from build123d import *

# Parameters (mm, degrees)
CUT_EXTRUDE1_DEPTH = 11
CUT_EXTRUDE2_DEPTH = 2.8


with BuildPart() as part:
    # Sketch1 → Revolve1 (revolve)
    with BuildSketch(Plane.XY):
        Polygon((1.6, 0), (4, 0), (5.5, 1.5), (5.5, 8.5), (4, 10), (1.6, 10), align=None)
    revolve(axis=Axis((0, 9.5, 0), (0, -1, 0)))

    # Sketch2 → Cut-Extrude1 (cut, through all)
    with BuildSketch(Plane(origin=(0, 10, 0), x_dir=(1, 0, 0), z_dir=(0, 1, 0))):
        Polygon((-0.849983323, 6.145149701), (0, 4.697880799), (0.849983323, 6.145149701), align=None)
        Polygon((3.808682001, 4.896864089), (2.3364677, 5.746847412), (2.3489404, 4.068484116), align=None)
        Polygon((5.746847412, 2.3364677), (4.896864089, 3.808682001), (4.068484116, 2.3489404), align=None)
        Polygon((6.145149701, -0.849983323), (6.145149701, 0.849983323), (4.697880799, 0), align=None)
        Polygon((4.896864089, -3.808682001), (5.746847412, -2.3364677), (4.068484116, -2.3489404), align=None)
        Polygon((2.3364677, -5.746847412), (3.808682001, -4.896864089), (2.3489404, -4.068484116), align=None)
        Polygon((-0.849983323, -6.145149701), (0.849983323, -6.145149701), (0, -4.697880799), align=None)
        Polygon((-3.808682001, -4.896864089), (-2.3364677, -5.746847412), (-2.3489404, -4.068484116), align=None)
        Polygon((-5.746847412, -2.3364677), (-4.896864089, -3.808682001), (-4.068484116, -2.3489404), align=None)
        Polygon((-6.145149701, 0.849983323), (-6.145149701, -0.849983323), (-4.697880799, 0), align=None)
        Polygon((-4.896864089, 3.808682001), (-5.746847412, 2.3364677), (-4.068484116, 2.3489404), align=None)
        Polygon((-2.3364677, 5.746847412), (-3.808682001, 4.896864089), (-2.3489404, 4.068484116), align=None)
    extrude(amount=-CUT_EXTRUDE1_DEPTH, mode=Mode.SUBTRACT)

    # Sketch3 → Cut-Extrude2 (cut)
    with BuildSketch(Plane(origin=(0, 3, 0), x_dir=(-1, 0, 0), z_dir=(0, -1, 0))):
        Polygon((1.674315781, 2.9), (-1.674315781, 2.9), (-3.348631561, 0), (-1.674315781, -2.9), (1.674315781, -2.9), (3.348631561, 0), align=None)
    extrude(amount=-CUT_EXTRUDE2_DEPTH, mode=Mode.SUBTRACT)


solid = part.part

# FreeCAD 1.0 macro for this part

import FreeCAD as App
import Part
import Sketcher
from FreeCAD import Vector
Q = App.Units.Quantity

doc = App.newDocument("Part")
body = doc.addObject("PartDesign::Body", "Body")

sketch1 = doc.addObject("Sketcher::SketchObject", "Sketch")
body.addObject(sketch1)
sketch1.AttachmentSupport = (doc.XY_Plane, [""])
sketch1.MapMode = "FlatFace"
sketch1.addGeometry(Part.LineSegment(Vector(1.6, 0, 0), Vector(4, 0, 0)), False)
sketch1.addGeometry(Part.LineSegment(Vector(4, 0, 0), Vector(5.5, 1.5, 0)), False)
sketch1.addGeometry(Part.LineSegment(Vector(5.5, 1.5, 0), Vector(5.5, 8.5, 0)), False)
sketch1.addGeometry(Part.LineSegment(Vector(5.5, 8.5, 0), Vector(4, 10, 0)), False)
sketch1.addGeometry(Part.LineSegment(Vector(4, 10, 0), Vector(1.6, 10, 0)), False)
sketch1.addGeometry(Part.LineSegment(Vector(1.6, 10, 0), Vector(1.6, 0, 0)), False)
sketch1.addConstraint(Sketcher.Constraint("Coincident", 0, 2, 1, 1))
sketch1.addConstraint(Sketcher.Constraint("Coincident", 1, 2, 2, 1))
sketch1.addConstraint(Sketcher.Constraint("Coincident", 2, 2, 3, 1))
sketch1.addConstraint(Sketcher.Constraint("Coincident", 3, 2, 4, 1))
sketch1.addConstraint(Sketcher.Constraint("Coincident", 4, 2, 5, 1))
sketch1.addConstraint(Sketcher.Constraint("Coincident", 5, 2, 0, 1))
sketch1.addConstraint(Sketcher.Constraint("Horizontal", 0))
sketch1.addConstraint(Sketcher.Constraint("Vertical", 2))
sketch1.addConstraint(Sketcher.Constraint("Horizontal", 4))
sketch1.addConstraint(Sketcher.Constraint("Vertical", 5))
sketch1.addConstraint(Sketcher.Constraint("PointOnObject", 0, 2, -1))
sketch1.addConstraint(Sketcher.Constraint("Perpendicular", 1, 3))
sketch1.addConstraint(Sketcher.Constraint("Vertical", 0, 2, 3, 2))
sketch1.addConstraint(Sketcher.Constraint("Equal", 1, 3))
sketch1.addConstraint(Sketcher.Constraint("DistanceY", 2, 1, 2, 2, 7.0))
sketch1.addConstraint(Sketcher.Constraint("DistanceY", 5, 2, 5, 1, 10.0))
sketch1.addConstraint(Sketcher.Constraint("DistanceX", 0, 1, 0, 2, 2.4))
sketch1.addConstraint(Sketcher.Constraint("DistanceX", -1, 1, 0, 2, 4.0))
revolution = doc.addObject("PartDesign::Revolution", "Revolution")
body.addObject(revolution)
revolution.Profile = sketch1
revolution.ReferenceAxis = (sketch1, ["V_Axis"])
revolution.Angle = 360

sketch2 = doc.addObject("Sketcher::SketchObject", "Sketch001")
body.addObject(sketch2)
sketch2.AttachmentSupport = (doc.XZ_Plane, [""])
sketch2.MapMode = "FlatFace"
sketch2.AttachmentOffset = App.Placement(Vector(0, 0, -10), App.Rotation())
sketch2.addGeometry(Part.LineSegment(Vector(-0.8, -6.1, 0), Vector(0, -4.7, 0)), False)
sketch2.addGeometry(Part.LineSegment(Vector(0, -4.7, 0), Vector(0.8, -6.1, 0)), False)
sketch2.addGeometry(Part.LineSegment(Vector(0.8, -6.1, 0), Vector(-0.8, -6.1, 0)), False)
sketch2.addGeometry(Part.LineSegment(Vector(3.8, -4.9, 0), Vector(2.3, -5.7, 0)), False)
sketch2.addGeometry(Part.LineSegment(Vector(2.3, -5.7, 0), Vector(2.3, -4.1, 0)), False)
sketch2.addGeometry(Part.LineSegment(Vector(2.3, -4.1, 0), Vector(3.8, -4.9, 0)), False)
sketch2.addGeometry(Part.LineSegment(Vector(5.7, -2.3, 0), Vector(4.9, -3.8, 0)), False)
sketch2.addGeometry(Part.LineSegment(Vector(4.9, -3.8, 0), Vector(4.1, -2.3, 0)), False)
sketch2.addGeometry(Part.LineSegment(Vector(4.1, -2.3, 0), Vector(5.7, -2.3, 0)), False)
sketch2.addGeometry(Part.LineSegment(Vector(6.1, 0.8, 0), Vector(6.1, -0.8, 0)), False)
sketch2.addGeometry(Part.LineSegment(Vector(6.1, -0.8, 0), Vector(4.7, 0, 0)), False)
sketch2.addGeometry(Part.LineSegment(Vector(4.7, 0, 0), Vector(6.1, 0.8, 0)), False)
sketch2.addGeometry(Part.LineSegment(Vector(4.9, 3.8, 0), Vector(5.7, 2.3, 0)), False)
sketch2.addGeometry(Part.LineSegment(Vector(5.7, 2.3, 0), Vector(4.1, 2.3, 0)), False)
sketch2.addGeometry(Part.LineSegment(Vector(4.1, 2.3, 0), Vector(4.9, 3.8, 0)), False)
sketch2.addGeometry(Part.LineSegment(Vector(2.3, 5.7, 0), Vector(3.8, 4.9, 0)), False)
sketch2.addGeometry(Part.LineSegment(Vector(3.8, 4.9, 0), Vector(2.3, 4.1, 0)), False)
sketch2.addGeometry(Part.LineSegment(Vector(2.3, 4.1, 0), Vector(2.3, 5.7, 0)), False)
sketch2.addGeometry(Part.LineSegment(Vector(-0.8, 6.1, 0), Vector(0.8, 6.1, 0)), False)
sketch2.addGeometry(Part.LineSegment(Vector(0.8, 6.1, 0), Vector(0, 4.7, 0)), False)
sketch2.addGeometry(Part.LineSegment(Vector(0, 4.7, 0), Vector(-0.8, 6.1, 0)), False)
sketch2.addGeometry(Part.LineSegment(Vector(-3.8, 4.9, 0), Vector(-2.3, 5.7, 0)), False)
sketch2.addGeometry(Part.LineSegment(Vector(-2.3, 5.7, 0), Vector(-2.3, 4.1, 0)), False)
sketch2.addGeometry(Part.LineSegment(Vector(-2.3, 4.1, 0), Vector(-3.8, 4.9, 0)), False)
sketch2.addGeometry(Part.LineSegment(Vector(-5.7, 2.3, 0), Vector(-4.9, 3.8, 0)), False)
sketch2.addGeometry(Part.LineSegment(Vector(-4.9, 3.8, 0), Vector(-4.1, 2.3, 0)), False)
sketch2.addGeometry(Part.LineSegment(Vector(-4.1, 2.3, 0), Vector(-5.7, 2.3, 0)), False)
sketch2.addGeometry(Part.LineSegment(Vector(-6.1, -0.8, 0), Vector(-6.1, 0.8, 0)), False)
sketch2.addGeometry(Part.LineSegment(Vector(-6.1, 0.8, 0), Vector(-4.7, 0, 0)), False)
sketch2.addGeometry(Part.LineSegment(Vector(-4.7, 0, 0), Vector(-6.1, -0.8, 0)), False)
sketch2.addGeometry(Part.LineSegment(Vector(-4.9, -3.8, 0), Vector(-5.7, -2.3, 0)), False)
sketch2.addGeometry(Part.LineSegment(Vector(-5.7, -2.3, 0), Vector(-4.1, -2.3, 0)), False)
sketch2.addGeometry(Part.LineSegment(Vector(-4.1, -2.3, 0), Vector(-4.9, -3.8, 0)), False)
sketch2.addGeometry(Part.LineSegment(Vector(-2.3, -5.7, 0), Vector(-3.8, -4.9, 0)), False)
sketch2.addGeometry(Part.LineSegment(Vector(-3.8, -4.9, 0), Vector(-2.3, -4.1, 0)), False)
sketch2.addGeometry(Part.LineSegment(Vector(-2.3, -4.1, 0), Vector(-2.3, -5.7, 0)), False)
sketch2.addConstraint(Sketcher.Constraint("Coincident", 0, 2, 1, 1))
sketch2.addConstraint(Sketcher.Constraint("Coincident", 1, 2, 2, 1))
sketch2.addConstraint(Sketcher.Constraint("Coincident", 2, 2, 0, 1))
sketch2.addConstraint(Sketcher.Constraint("Coincident", 3, 2, 4, 1))
sketch2.addConstraint(Sketcher.Constraint("Coincident", 4, 2, 5, 1))
sketch2.addConstraint(Sketcher.Constraint("Coincident", 5, 2, 3, 1))
sketch2.addConstraint(Sketcher.Constraint("Coincident", 6, 2, 7, 1))
sketch2.addConstraint(Sketcher.Constraint("Coincident", 7, 2, 8, 1))
sketch2.addConstraint(Sketcher.Constraint("Coincident", 8, 2, 6, 1))
sketch2.addConstraint(Sketcher.Constraint("Coincident", 9, 2, 10, 1))
sketch2.addConstraint(Sketcher.Constraint("Coincident", 10, 2, 11, 1))
sketch2.addConstraint(Sketcher.Constraint("Coincident", 11, 2, 9, 1))
sketch2.addConstraint(Sketcher.Constraint("Coincident", 12, 2, 13, 1))
sketch2.addConstraint(Sketcher.Constraint("Coincident", 13, 2, 14, 1))
sketch2.addConstraint(Sketcher.Constraint("Coincident", 14, 2, 12, 1))
sketch2.addConstraint(Sketcher.Constraint("Coincident", 15, 2, 16, 1))
sketch2.addConstraint(Sketcher.Constraint("Coincident", 16, 2, 17, 1))
sketch2.addConstraint(Sketcher.Constraint("Coincident", 17, 2, 15, 1))
sketch2.addConstraint(Sketcher.Constraint("Coincident", 18, 2, 19, 1))
sketch2.addConstraint(Sketcher.Constraint("Coincident", 19, 2, 20, 1))
sketch2.addConstraint(Sketcher.Constraint("Coincident", 20, 2, 18, 1))
sketch2.addConstraint(Sketcher.Constraint("Coincident", 21, 2, 22, 1))
sketch2.addConstraint(Sketcher.Constraint("Coincident", 22, 2, 23, 1))
sketch2.addConstraint(Sketcher.Constraint("Coincident", 23, 2, 21, 1))
sketch2.addConstraint(Sketcher.Constraint("Coincident", 24, 2, 25, 1))
sketch2.addConstraint(Sketcher.Constraint("Coincident", 25, 2, 26, 1))
sketch2.addConstraint(Sketcher.Constraint("Coincident", 26, 2, 24, 1))
sketch2.addConstraint(Sketcher.Constraint("Coincident", 27, 2, 28, 1))
sketch2.addConstraint(Sketcher.Constraint("Coincident", 28, 2, 29, 1))
sketch2.addConstraint(Sketcher.Constraint("Coincident", 29, 2, 27, 1))
sketch2.addConstraint(Sketcher.Constraint("Coincident", 30, 2, 31, 1))
sketch2.addConstraint(Sketcher.Constraint("Coincident", 31, 2, 32, 1))
sketch2.addConstraint(Sketcher.Constraint("Coincident", 32, 2, 30, 1))
sketch2.addConstraint(Sketcher.Constraint("Coincident", 33, 2, 34, 1))
sketch2.addConstraint(Sketcher.Constraint("Coincident", 34, 2, 35, 1))
sketch2.addConstraint(Sketcher.Constraint("Coincident", 35, 2, 33, 1))
sketch2.addConstraint(Sketcher.Constraint("Horizontal", 2))
sketch2.addConstraint(Sketcher.Constraint("Vertical", 9))
sketch2.addConstraint(Sketcher.Constraint("Horizontal", 18))
sketch2.addConstraint(Sketcher.Constraint("Vertical", 27))
sketch2.addConstraint(Sketcher.Constraint("Symmetric", 2, 2, 18, 2, -1, 1))
sketch2.addConstraint(Sketcher.Constraint("Symmetric", 0, 2, 19, 2, -1, 1))
sketch2.addConstraint(Sketcher.Constraint("Symmetric", 3, 2, 21, 2, -1, 1))
sketch2.addConstraint(Sketcher.Constraint("Symmetric", 4, 2, 22, 2, -1, 1))
sketch2.addConstraint(Sketcher.Constraint("Symmetric", 5, 2, 23, 2, -1, 1))
sketch2.addConstraint(Sketcher.Constraint("Symmetric", 6, 2, 24, 2, -1, 1))
sketch2.addConstraint(Sketcher.Constraint("Symmetric", 7, 2, 25, 2, -1, 1))
sketch2.addConstraint(Sketcher.Constraint("Symmetric", 8, 2, 26, 2, -1, 1))
sketch2.addConstraint(Sketcher.Constraint("Symmetric", 9, 2, 27, 2, -1, 1))
sketch2.addConstraint(Sketcher.Constraint("Symmetric", 10, 2, 28, 2, -1, 1))
sketch2.addConstraint(Sketcher.Constraint("Symmetric", 12, 2, 30, 2, -1, 1))
sketch2.addConstraint(Sketcher.Constraint("Symmetric", 13, 2, 31, 2, -1, 1))
sketch2.addConstraint(Sketcher.Constraint("Symmetric", 14, 2, 32, 2, -1, 1))
sketch2.addConstraint(Sketcher.Constraint("Symmetric", 15, 2, 33, 2, -1, 1))
sketch2.addConstraint(Sketcher.Constraint("Symmetric", 16, 2, 34, 2, -1, 1))
sketch2.addConstraint(Sketcher.Constraint("Symmetric", 17, 2, 35, 2, -1, 1))
sketch2.addConstraint(Sketcher.Constraint("Symmetric", 17, 2, 21, 2, -2))
sketch2.addConstraint(Sketcher.Constraint("Symmetric", 16, 2, 22, 2, -2))
sketch2.addConstraint(Sketcher.Constraint("Symmetric", 15, 2, 23, 2, -2))
sketch2.addConstraint(Sketcher.Constraint("Symmetric", 14, 2, 24, 2, -2))
sketch2.addConstraint(Sketcher.Constraint("Symmetric", 13, 2, 25, 2, -2))
sketch2.addConstraint(Sketcher.Constraint("Symmetric", 12, 2, 26, 2, -2))
sketch2.addConstraint(Sketcher.Constraint("PointOnObject", 0, 2, -2))
sketch2.addConstraint(Sketcher.Constraint("PointOnObject", 10, 2, -1))
sketch2.addConstraint(Sketcher.Constraint("Perpendicular", 0, 10))
sketch2.addConstraint(Sketcher.Constraint("Perpendicular", 1, 11))
sketch2.addConstraint(Sketcher.Constraint("Perpendicular", 3, 12))
sketch2.addConstraint(Sketcher.Constraint("Perpendicular", 4, 13))
sketch2.addConstraint(Sketcher.Constraint("Perpendicular", 5, 14))
sketch2.addConstraint(Sketcher.Constraint("Perpendicular", 11, 20))
sketch2.addConstraint(Sketcher.Constraint("Perpendicular", 20, 29))
sketch2.addConstraint(Sketcher.Constraint("Horizontal", 11, 2, 27, 2))
sketch2.addConstraint(Sketcher.Constraint("Equal", 18, 9))
sketch2.addConstraint(Sketcher.Constraint("Equal", 1, 4))
sketch2.addConstraint(Sketcher.Constraint("Equal", 4, 5))
sketch2.addConstraint(Sketcher.Constraint("Equal", 3, 6))
sketch2.addConstraint(Sketcher.Constraint("Angle", 3, Q("-150 deg")))
sketch2.addConstraint(Sketcher.Constraint("DistanceX", 1, 2, 5, 2, 2.958699))
sketch2.addConstraint(Sketcher.Constraint("DistanceY", 0, 2, 6, 2, 0.889199))
sketch2.addConstraint(Sketcher.Constraint("DistanceY", 6, 2, 9, 2, 2.958699))
sketch2.addConstraint(Sketcher.Constraint("DistanceY", 4, 2, 9, 2, 3.218501))
sketch2.addConstraint(Sketcher.Constraint("DistanceX", 15, 2, 10, 2, 0.889199))
sketch2.addConstraint(Sketcher.Constraint("DistanceX", 18, 2, 13, 2, 3.218501))
sketch2.addConstraint(Sketcher.Constraint("Distance", 0, 1.67841))
sketch2.addConstraint(Sketcher.Constraint("DistanceX", 2, 2, 2, 1, 1.699967))
sketch2.addConstraint(Sketcher.Constraint("DistanceX", -1, 1, 4, 2, 2.34894))
pocket1 = doc.addObject("PartDesign::Pocket", "Pocket")
body.addObject(pocket1)
pocket1.Profile = sketch2
pocket1.Type = "ThroughAll"
pocket1.Reversed = True

sketch3 = doc.addObject("Sketcher::SketchObject", "Sketch002")
body.addObject(sketch3)
sketch3.AttachmentSupport = (doc.XZ_Plane, [""])
sketch3.MapMode = "FlatFace"
sketch3.AttachmentOffset = App.Placement(Vector(0, 0, -3), App.Rotation())
sketch3.addGeometry(Part.LineSegment(Vector(-1.7, -2.9, 0), Vector(1.7, -2.9, 0)), False)
sketch3.addGeometry(Part.LineSegment(Vector(1.7, -2.9, 0), Vector(3.3, 0, 0)), False)
sketch3.addGeometry(Part.LineSegment(Vector(3.3, 0, 0), Vector(1.7, 2.9, 0)), False)
sketch3.addGeometry(Part.LineSegment(Vector(1.7, 2.9, 0), Vector(-1.7, 2.9, 0)), False)
sketch3.addGeometry(Part.LineSegment(Vector(-1.7, 2.9, 0), Vector(-3.3, 0, 0)), False)
sketch3.addGeometry(Part.LineSegment(Vector(-3.3, 0, 0), Vector(-1.7, -2.9, 0)), False)
sketch3.addConstraint(Sketcher.Constraint("Coincident", 0, 2, 1, 1))
sketch3.addConstraint(Sketcher.Constraint("Coincident", 1, 2, 2, 1))
sketch3.addConstraint(Sketcher.Constraint("Coincident", 2, 2, 3, 1))
sketch3.addConstraint(Sketcher.Constraint("Coincident", 3, 2, 4, 1))
sketch3.addConstraint(Sketcher.Constraint("Coincident", 4, 2, 5, 1))
sketch3.addConstraint(Sketcher.Constraint("Coincident", 5, 2, 0, 1))
sketch3.addConstraint(Sketcher.Constraint("Horizontal", 0))
sketch3.addConstraint(Sketcher.Constraint("Horizontal", 3))
sketch3.addConstraint(Sketcher.Constraint("Symmetric", 0, 2, 3, 2, -1, 1))
sketch3.addConstraint(Sketcher.Constraint("Symmetric", 1, 2, 4, 2, -1, 1))
sketch3.addConstraint(Sketcher.Constraint("PointOnObject", 1, 2, -1))
sketch3.addConstraint(Sketcher.Constraint("Parallel", 2, 5))
sketch3.addConstraint(Sketcher.Constraint("Vertical", 0, 2, 2, 2))
sketch3.addConstraint(Sketcher.Constraint("Angle", 1, Q("60 deg")))
sketch3.addConstraint(Sketcher.Constraint("DistanceY", 0, 2, -1, 1, 2.9))
sketch3.addConstraint(Sketcher.Constraint("DistanceX", 0, 1, 0, 2, 3.348632))
pocket2 = doc.addObject("PartDesign::Pocket", "Pocket001")
body.addObject(pocket2)
pocket2.Profile = sketch3
pocket2.Length = 2.8

doc.recompute()
